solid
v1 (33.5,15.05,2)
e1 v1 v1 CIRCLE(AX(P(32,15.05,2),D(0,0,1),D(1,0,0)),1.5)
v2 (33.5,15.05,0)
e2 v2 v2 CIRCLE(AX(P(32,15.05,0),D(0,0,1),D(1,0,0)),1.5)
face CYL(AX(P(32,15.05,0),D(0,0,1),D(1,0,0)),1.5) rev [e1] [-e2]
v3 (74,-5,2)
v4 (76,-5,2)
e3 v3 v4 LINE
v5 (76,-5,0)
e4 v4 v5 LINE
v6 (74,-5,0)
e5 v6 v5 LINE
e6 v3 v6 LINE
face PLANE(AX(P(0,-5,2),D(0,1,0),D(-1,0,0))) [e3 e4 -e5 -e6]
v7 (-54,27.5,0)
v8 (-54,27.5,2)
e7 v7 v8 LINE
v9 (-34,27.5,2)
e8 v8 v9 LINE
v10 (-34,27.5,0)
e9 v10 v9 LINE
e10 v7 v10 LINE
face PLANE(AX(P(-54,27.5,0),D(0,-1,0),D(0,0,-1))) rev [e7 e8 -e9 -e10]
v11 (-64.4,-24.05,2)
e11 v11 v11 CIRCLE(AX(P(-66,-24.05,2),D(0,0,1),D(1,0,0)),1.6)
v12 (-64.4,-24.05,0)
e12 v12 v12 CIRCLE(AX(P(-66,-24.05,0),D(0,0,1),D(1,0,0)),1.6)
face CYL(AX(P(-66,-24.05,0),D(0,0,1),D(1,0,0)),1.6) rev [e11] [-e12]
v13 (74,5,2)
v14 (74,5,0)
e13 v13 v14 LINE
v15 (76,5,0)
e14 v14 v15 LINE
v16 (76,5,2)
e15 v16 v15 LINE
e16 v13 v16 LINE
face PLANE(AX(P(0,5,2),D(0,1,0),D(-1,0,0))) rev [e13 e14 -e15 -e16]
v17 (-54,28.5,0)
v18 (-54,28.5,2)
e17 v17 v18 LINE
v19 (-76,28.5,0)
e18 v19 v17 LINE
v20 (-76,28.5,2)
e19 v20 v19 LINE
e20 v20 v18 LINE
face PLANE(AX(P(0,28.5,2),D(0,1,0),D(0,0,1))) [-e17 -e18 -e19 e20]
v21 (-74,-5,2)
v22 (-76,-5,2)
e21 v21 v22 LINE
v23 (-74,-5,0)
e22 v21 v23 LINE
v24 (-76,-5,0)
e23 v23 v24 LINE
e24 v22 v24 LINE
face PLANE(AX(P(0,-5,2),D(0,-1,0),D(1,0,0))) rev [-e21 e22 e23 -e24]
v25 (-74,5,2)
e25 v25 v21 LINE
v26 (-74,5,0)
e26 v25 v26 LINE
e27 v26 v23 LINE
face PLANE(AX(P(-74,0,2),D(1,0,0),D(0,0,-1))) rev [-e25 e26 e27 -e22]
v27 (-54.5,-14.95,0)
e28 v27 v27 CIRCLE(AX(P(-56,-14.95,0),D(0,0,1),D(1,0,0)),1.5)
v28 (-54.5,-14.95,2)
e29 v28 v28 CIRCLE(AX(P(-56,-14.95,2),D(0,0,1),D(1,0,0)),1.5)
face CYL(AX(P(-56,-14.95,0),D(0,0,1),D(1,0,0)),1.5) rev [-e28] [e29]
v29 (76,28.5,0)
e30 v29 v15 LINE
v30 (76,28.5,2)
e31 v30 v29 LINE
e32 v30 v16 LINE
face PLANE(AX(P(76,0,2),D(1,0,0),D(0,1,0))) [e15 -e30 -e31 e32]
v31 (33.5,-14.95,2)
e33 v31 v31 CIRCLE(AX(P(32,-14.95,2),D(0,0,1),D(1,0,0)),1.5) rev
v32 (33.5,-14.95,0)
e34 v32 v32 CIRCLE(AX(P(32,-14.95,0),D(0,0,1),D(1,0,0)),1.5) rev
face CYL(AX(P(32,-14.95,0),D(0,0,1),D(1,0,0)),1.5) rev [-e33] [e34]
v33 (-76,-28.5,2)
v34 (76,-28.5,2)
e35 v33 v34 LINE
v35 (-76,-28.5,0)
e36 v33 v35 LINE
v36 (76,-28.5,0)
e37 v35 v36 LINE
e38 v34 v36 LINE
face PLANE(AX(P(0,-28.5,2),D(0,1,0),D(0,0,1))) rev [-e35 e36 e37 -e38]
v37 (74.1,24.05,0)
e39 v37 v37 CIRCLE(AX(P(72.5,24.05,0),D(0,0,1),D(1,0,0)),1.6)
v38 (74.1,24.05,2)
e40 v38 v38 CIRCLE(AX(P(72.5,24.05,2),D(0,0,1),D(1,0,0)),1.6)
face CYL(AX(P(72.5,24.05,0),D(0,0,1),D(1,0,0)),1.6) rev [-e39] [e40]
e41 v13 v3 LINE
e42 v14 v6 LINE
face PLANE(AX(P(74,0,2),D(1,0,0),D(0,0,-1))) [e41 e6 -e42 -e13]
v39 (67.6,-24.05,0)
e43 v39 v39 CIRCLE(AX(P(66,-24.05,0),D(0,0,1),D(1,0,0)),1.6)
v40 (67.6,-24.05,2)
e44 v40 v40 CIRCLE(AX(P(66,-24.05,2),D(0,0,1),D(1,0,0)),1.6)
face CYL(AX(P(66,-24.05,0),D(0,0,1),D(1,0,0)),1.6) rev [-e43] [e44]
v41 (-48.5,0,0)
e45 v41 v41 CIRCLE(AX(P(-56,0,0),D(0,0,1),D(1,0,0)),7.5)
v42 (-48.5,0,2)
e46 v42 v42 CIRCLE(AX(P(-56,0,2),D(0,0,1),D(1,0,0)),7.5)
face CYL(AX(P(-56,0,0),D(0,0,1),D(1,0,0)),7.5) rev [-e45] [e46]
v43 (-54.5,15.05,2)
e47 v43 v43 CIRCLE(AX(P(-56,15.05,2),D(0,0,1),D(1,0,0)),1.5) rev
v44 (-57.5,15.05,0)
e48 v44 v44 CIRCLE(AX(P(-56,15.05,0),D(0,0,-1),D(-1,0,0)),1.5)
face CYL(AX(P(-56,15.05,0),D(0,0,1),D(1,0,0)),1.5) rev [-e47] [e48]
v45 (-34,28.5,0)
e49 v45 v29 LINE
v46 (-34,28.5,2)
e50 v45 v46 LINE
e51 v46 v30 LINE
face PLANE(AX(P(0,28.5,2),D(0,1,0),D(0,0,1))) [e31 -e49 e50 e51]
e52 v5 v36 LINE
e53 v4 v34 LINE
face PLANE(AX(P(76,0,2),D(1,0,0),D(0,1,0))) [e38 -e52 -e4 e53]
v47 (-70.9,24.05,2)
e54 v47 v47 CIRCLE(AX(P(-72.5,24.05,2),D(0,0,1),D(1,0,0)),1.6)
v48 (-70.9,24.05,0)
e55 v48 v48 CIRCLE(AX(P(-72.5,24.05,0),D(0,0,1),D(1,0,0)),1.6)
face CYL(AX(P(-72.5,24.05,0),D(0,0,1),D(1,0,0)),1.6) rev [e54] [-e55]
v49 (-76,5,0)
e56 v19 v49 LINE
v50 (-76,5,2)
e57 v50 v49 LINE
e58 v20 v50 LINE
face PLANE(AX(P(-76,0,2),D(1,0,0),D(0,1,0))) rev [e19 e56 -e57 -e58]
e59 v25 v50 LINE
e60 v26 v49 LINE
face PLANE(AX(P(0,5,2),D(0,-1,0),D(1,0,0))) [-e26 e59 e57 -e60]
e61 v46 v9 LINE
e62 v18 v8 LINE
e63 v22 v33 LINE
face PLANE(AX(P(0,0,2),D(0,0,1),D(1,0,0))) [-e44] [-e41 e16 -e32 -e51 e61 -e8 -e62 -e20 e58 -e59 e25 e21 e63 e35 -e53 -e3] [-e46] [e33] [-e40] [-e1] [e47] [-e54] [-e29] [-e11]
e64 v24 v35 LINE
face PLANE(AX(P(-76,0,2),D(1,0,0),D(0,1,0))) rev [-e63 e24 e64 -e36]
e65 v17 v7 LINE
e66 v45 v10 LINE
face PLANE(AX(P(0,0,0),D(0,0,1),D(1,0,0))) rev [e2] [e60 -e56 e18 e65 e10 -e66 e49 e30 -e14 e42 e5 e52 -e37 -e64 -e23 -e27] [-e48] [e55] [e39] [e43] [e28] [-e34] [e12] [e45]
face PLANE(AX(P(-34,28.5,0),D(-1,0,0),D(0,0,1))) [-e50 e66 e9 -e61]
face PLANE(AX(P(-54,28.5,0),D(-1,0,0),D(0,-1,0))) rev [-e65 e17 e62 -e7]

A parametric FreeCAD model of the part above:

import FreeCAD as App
import Part
import Sketcher


def add_polygon(sketch, points):
    """Adds a closed chain of lines whose ends are joined by coincident constraints."""
    first, n = sketch.GeometryCount, len(points)
    for a, b in zip(points, points[1:] + points[:1]):
        sketch.addGeometry(Part.LineSegment(App.Vector(*a, 0), App.Vector(*b, 0)), False)
    for i in range(n):
        sketch.addConstraint(Sketcher.Constraint("Coincident", first + i, 2, first + (i + 1) % n, 1))

doc = App.newDocument("Part")
body = doc.addObject("PartDesign::Body", "Body")

# Sketch on XY plane
sketch1 = body.newObject("Sketcher::SketchObject", "Sketch")
sketch1.AttachmentSupport = (doc.getObject("XY_Plane"), [""])
sketch1.MapMode = "FlatFace"
add_polygon(sketch1, [(76, 28.5), (-76, 28.5), (-76, 5), (-74, 5), (-74, -5), (-76, -5), (-76, -28.5), (76, -28.5), (76, -5), (74, -5), (74, 5), (76, 5)])  # lines 0-11
sketch1.addConstraint([
    Sketcher.Constraint("Horizontal", 0),
    Sketcher.Constraint("Vertical", 1),
    Sketcher.Constraint("Horizontal", 2),
    Sketcher.Constraint("Vertical", 3),
    Sketcher.Constraint("Horizontal", 4),
    Sketcher.Constraint("Vertical", 5),
    Sketcher.Constraint("Horizontal", 6),
    Sketcher.Constraint("Vertical", 7),
    Sketcher.Constraint("Horizontal", 8),
    Sketcher.Constraint("Vertical", 9),
    Sketcher.Constraint("Horizontal", 10),
    Sketcher.Constraint("Vertical", 11),
    Sketcher.Constraint("Symmetric", 0, 2, 6, 2, -1, 1),
    Sketcher.Constraint("Symmetric", 2, 2, 8, 2, -1, 1),
    Sketcher.Constraint("Symmetric", 4, 2, 10, 2, -1, 1),
    Sketcher.Constraint("Symmetric", 4, 2, 7, 2, -2),
    Sketcher.Constraint("DistanceX", 0, 2, 0, 1, 152.0),
    Sketcher.Constraint("DistanceX", 2, 1, 2, 2, 2.0),
    Sketcher.Constraint("DistanceY", 3, 2, 3, 1, 10.0),
    Sketcher.Constraint("DistanceY", 1, 2, 1, 1, 23.5),
])
pad1 = body.newObject("PartDesign::Pad", "Pad")
pad1.Profile = sketch1
pad1.Length = 2

# Sketch on XY plane
sketch2 = body.newObject("Sketcher::SketchObject", "Sketch001")
sketch2.AttachmentSupport = (doc.getObject("XY_Plane"), [""])
sketch2.MapMode = "FlatFace"
sketch2.AttachmentOffset = App.Placement(App.Vector(0, 0, 2), App.Rotation())
sketch2.addGeometry([
    Part.Circle(App.Vector(-72.5, 24.1, 0), App.Vector(0, 0, 1), 1.6),  # 0
    Part.Circle(App.Vector(72.5, 24.1, 0), App.Vector(0, 0, 1), 1.6),  # 1
    Part.Circle(App.Vector(66, -24.1, 0), App.Vector(0, 0, 1), 1.6),  # 2
    Part.Circle(App.Vector(-66, -24.1, 0), App.Vector(0, 0, 1), 1.6),  # 3
    Part.Circle(App.Vector(-56, 0, 0), App.Vector(0, 0, 1), 7.5),  # 4
], False)
sketch2.addConstraint([
    Sketcher.Constraint("Equal", 0, 1),
    Sketcher.Constraint("Equal", 1, 2),
    Sketcher.Constraint("Equal", 2, 3),
    Sketcher.Constraint("Symmetric", 0, 3, 1, 3, -2),
    Sketcher.Constraint("Symmetric", 2, 3, 3, 3, -2),
    Sketcher.Constraint("PointOnObject", 4, 3, -1),
    Sketcher.Constraint("Diameter", 4, 15.0),
    Sketcher.Constraint("Diameter", 0, 3.2),
    Sketcher.Constraint("DistanceX", -1, 1, 2, 3, 66.0),
    Sketcher.Constraint("DistanceX", 4, 3, -1, 1, 56.0),
    Sketcher.Constraint("DistanceX", 0, 3, 1, 3, 145.0),
    Sketcher.Constraint("DistanceY", 2, 3, 1, 3, 48.1),
    Sketcher.Constraint("DistanceY", -1, 1, 0, 3, 24.05),
])
pocket1 = body.newObject("PartDesign::Pocket", "Pocket")
pocket1.Profile = sketch2
pocket1.Type = "ThroughAll"

# Sketch on XY plane
sketch3 = body.newObject("Sketcher::SketchObject", "Sketch002")
sketch3.AttachmentSupport = (doc.getObject("XY_Plane"), [""])
sketch3.MapMode = "FlatFace"
sketch3.AttachmentOffset = App.Placement(App.Vector(0, 0, 2), App.Rotation())
sketch3.addGeometry(Part.Circle(App.Vector(32, -14.9, 0), App.Vector(0, 0, 1), 1.5), False)  # 0
sketch3.addGeometry(Part.Circle(App.Vector(-56, 15.1, 0), App.Vector(0, 0, 1), 1.5), False)  # 1
sketch3.addGeometry(Part.Circle(App.Vector(-56, -14.9, 0), App.Vector(0, 0, 1), 1.5), False)  # 2
sketch3.addGeometry(Part.Circle(App.Vector(32, 15.1, 0), App.Vector(0, 0, 1), 1.5), False)  # 3
add_polygon(sketch3, [(-54, 28.5), (-54, 27.5), (-34, 27.5), (-34, 28.5)])  # lines 4-7
sketch3.addConstraint([
    Sketcher.Constraint("Vertical", 4),
    Sketcher.Constraint("Horizontal", 5),
    Sketcher.Constraint("Vertical", 6),
    Sketcher.Constraint("Horizontal", 7),
    Sketcher.Constraint("Equal", 0, 1),
    Sketcher.Constraint("Equal", 1, 2),
    Sketcher.Constraint("Equal", 2, 3),
    Sketcher.Constraint("Horizontal", 0, 3, 2, 3),
    Sketcher.Constraint("Horizontal", 1, 3, 3, 3),
    Sketcher.Constraint("Vertical", 1, 3, 2, 3),
    Sketcher.Constraint("Vertical", 0, 3, 3, 3),
    Sketcher.Constraint("Diameter", 0, 3.0),
    Sketcher.Constraint("DistanceX", 5, 1, 5, 2, 20.0),
    Sketcher.Constraint("DistanceY", 4, 2, 4, 1, 1.0),
    Sketcher.Constraint("DistanceX", -1, 1, 0, 3, 32.0),
    Sketcher.Constraint("DistanceX", 1, 3, -1, 1, 56.0),
    Sketcher.Constraint("DistanceX", 4, 2, -1, 1, 54.0),
    Sketcher.Constraint("DistanceY", 0, 3, 1, 3, 30.0),
    Sketcher.Constraint("DistanceY", -1, 1, 4, 2, 27.5),
    Sketcher.Constraint("DistanceY", 0, 3, -1, 1, 14.95),
])
pocket2 = body.newObject("PartDesign::Pocket", "Pocket001")
pocket2.Profile = sketch3
pocket2.Type = "ThroughAll"
pocket2.Midplane = True

doc.recompute()
